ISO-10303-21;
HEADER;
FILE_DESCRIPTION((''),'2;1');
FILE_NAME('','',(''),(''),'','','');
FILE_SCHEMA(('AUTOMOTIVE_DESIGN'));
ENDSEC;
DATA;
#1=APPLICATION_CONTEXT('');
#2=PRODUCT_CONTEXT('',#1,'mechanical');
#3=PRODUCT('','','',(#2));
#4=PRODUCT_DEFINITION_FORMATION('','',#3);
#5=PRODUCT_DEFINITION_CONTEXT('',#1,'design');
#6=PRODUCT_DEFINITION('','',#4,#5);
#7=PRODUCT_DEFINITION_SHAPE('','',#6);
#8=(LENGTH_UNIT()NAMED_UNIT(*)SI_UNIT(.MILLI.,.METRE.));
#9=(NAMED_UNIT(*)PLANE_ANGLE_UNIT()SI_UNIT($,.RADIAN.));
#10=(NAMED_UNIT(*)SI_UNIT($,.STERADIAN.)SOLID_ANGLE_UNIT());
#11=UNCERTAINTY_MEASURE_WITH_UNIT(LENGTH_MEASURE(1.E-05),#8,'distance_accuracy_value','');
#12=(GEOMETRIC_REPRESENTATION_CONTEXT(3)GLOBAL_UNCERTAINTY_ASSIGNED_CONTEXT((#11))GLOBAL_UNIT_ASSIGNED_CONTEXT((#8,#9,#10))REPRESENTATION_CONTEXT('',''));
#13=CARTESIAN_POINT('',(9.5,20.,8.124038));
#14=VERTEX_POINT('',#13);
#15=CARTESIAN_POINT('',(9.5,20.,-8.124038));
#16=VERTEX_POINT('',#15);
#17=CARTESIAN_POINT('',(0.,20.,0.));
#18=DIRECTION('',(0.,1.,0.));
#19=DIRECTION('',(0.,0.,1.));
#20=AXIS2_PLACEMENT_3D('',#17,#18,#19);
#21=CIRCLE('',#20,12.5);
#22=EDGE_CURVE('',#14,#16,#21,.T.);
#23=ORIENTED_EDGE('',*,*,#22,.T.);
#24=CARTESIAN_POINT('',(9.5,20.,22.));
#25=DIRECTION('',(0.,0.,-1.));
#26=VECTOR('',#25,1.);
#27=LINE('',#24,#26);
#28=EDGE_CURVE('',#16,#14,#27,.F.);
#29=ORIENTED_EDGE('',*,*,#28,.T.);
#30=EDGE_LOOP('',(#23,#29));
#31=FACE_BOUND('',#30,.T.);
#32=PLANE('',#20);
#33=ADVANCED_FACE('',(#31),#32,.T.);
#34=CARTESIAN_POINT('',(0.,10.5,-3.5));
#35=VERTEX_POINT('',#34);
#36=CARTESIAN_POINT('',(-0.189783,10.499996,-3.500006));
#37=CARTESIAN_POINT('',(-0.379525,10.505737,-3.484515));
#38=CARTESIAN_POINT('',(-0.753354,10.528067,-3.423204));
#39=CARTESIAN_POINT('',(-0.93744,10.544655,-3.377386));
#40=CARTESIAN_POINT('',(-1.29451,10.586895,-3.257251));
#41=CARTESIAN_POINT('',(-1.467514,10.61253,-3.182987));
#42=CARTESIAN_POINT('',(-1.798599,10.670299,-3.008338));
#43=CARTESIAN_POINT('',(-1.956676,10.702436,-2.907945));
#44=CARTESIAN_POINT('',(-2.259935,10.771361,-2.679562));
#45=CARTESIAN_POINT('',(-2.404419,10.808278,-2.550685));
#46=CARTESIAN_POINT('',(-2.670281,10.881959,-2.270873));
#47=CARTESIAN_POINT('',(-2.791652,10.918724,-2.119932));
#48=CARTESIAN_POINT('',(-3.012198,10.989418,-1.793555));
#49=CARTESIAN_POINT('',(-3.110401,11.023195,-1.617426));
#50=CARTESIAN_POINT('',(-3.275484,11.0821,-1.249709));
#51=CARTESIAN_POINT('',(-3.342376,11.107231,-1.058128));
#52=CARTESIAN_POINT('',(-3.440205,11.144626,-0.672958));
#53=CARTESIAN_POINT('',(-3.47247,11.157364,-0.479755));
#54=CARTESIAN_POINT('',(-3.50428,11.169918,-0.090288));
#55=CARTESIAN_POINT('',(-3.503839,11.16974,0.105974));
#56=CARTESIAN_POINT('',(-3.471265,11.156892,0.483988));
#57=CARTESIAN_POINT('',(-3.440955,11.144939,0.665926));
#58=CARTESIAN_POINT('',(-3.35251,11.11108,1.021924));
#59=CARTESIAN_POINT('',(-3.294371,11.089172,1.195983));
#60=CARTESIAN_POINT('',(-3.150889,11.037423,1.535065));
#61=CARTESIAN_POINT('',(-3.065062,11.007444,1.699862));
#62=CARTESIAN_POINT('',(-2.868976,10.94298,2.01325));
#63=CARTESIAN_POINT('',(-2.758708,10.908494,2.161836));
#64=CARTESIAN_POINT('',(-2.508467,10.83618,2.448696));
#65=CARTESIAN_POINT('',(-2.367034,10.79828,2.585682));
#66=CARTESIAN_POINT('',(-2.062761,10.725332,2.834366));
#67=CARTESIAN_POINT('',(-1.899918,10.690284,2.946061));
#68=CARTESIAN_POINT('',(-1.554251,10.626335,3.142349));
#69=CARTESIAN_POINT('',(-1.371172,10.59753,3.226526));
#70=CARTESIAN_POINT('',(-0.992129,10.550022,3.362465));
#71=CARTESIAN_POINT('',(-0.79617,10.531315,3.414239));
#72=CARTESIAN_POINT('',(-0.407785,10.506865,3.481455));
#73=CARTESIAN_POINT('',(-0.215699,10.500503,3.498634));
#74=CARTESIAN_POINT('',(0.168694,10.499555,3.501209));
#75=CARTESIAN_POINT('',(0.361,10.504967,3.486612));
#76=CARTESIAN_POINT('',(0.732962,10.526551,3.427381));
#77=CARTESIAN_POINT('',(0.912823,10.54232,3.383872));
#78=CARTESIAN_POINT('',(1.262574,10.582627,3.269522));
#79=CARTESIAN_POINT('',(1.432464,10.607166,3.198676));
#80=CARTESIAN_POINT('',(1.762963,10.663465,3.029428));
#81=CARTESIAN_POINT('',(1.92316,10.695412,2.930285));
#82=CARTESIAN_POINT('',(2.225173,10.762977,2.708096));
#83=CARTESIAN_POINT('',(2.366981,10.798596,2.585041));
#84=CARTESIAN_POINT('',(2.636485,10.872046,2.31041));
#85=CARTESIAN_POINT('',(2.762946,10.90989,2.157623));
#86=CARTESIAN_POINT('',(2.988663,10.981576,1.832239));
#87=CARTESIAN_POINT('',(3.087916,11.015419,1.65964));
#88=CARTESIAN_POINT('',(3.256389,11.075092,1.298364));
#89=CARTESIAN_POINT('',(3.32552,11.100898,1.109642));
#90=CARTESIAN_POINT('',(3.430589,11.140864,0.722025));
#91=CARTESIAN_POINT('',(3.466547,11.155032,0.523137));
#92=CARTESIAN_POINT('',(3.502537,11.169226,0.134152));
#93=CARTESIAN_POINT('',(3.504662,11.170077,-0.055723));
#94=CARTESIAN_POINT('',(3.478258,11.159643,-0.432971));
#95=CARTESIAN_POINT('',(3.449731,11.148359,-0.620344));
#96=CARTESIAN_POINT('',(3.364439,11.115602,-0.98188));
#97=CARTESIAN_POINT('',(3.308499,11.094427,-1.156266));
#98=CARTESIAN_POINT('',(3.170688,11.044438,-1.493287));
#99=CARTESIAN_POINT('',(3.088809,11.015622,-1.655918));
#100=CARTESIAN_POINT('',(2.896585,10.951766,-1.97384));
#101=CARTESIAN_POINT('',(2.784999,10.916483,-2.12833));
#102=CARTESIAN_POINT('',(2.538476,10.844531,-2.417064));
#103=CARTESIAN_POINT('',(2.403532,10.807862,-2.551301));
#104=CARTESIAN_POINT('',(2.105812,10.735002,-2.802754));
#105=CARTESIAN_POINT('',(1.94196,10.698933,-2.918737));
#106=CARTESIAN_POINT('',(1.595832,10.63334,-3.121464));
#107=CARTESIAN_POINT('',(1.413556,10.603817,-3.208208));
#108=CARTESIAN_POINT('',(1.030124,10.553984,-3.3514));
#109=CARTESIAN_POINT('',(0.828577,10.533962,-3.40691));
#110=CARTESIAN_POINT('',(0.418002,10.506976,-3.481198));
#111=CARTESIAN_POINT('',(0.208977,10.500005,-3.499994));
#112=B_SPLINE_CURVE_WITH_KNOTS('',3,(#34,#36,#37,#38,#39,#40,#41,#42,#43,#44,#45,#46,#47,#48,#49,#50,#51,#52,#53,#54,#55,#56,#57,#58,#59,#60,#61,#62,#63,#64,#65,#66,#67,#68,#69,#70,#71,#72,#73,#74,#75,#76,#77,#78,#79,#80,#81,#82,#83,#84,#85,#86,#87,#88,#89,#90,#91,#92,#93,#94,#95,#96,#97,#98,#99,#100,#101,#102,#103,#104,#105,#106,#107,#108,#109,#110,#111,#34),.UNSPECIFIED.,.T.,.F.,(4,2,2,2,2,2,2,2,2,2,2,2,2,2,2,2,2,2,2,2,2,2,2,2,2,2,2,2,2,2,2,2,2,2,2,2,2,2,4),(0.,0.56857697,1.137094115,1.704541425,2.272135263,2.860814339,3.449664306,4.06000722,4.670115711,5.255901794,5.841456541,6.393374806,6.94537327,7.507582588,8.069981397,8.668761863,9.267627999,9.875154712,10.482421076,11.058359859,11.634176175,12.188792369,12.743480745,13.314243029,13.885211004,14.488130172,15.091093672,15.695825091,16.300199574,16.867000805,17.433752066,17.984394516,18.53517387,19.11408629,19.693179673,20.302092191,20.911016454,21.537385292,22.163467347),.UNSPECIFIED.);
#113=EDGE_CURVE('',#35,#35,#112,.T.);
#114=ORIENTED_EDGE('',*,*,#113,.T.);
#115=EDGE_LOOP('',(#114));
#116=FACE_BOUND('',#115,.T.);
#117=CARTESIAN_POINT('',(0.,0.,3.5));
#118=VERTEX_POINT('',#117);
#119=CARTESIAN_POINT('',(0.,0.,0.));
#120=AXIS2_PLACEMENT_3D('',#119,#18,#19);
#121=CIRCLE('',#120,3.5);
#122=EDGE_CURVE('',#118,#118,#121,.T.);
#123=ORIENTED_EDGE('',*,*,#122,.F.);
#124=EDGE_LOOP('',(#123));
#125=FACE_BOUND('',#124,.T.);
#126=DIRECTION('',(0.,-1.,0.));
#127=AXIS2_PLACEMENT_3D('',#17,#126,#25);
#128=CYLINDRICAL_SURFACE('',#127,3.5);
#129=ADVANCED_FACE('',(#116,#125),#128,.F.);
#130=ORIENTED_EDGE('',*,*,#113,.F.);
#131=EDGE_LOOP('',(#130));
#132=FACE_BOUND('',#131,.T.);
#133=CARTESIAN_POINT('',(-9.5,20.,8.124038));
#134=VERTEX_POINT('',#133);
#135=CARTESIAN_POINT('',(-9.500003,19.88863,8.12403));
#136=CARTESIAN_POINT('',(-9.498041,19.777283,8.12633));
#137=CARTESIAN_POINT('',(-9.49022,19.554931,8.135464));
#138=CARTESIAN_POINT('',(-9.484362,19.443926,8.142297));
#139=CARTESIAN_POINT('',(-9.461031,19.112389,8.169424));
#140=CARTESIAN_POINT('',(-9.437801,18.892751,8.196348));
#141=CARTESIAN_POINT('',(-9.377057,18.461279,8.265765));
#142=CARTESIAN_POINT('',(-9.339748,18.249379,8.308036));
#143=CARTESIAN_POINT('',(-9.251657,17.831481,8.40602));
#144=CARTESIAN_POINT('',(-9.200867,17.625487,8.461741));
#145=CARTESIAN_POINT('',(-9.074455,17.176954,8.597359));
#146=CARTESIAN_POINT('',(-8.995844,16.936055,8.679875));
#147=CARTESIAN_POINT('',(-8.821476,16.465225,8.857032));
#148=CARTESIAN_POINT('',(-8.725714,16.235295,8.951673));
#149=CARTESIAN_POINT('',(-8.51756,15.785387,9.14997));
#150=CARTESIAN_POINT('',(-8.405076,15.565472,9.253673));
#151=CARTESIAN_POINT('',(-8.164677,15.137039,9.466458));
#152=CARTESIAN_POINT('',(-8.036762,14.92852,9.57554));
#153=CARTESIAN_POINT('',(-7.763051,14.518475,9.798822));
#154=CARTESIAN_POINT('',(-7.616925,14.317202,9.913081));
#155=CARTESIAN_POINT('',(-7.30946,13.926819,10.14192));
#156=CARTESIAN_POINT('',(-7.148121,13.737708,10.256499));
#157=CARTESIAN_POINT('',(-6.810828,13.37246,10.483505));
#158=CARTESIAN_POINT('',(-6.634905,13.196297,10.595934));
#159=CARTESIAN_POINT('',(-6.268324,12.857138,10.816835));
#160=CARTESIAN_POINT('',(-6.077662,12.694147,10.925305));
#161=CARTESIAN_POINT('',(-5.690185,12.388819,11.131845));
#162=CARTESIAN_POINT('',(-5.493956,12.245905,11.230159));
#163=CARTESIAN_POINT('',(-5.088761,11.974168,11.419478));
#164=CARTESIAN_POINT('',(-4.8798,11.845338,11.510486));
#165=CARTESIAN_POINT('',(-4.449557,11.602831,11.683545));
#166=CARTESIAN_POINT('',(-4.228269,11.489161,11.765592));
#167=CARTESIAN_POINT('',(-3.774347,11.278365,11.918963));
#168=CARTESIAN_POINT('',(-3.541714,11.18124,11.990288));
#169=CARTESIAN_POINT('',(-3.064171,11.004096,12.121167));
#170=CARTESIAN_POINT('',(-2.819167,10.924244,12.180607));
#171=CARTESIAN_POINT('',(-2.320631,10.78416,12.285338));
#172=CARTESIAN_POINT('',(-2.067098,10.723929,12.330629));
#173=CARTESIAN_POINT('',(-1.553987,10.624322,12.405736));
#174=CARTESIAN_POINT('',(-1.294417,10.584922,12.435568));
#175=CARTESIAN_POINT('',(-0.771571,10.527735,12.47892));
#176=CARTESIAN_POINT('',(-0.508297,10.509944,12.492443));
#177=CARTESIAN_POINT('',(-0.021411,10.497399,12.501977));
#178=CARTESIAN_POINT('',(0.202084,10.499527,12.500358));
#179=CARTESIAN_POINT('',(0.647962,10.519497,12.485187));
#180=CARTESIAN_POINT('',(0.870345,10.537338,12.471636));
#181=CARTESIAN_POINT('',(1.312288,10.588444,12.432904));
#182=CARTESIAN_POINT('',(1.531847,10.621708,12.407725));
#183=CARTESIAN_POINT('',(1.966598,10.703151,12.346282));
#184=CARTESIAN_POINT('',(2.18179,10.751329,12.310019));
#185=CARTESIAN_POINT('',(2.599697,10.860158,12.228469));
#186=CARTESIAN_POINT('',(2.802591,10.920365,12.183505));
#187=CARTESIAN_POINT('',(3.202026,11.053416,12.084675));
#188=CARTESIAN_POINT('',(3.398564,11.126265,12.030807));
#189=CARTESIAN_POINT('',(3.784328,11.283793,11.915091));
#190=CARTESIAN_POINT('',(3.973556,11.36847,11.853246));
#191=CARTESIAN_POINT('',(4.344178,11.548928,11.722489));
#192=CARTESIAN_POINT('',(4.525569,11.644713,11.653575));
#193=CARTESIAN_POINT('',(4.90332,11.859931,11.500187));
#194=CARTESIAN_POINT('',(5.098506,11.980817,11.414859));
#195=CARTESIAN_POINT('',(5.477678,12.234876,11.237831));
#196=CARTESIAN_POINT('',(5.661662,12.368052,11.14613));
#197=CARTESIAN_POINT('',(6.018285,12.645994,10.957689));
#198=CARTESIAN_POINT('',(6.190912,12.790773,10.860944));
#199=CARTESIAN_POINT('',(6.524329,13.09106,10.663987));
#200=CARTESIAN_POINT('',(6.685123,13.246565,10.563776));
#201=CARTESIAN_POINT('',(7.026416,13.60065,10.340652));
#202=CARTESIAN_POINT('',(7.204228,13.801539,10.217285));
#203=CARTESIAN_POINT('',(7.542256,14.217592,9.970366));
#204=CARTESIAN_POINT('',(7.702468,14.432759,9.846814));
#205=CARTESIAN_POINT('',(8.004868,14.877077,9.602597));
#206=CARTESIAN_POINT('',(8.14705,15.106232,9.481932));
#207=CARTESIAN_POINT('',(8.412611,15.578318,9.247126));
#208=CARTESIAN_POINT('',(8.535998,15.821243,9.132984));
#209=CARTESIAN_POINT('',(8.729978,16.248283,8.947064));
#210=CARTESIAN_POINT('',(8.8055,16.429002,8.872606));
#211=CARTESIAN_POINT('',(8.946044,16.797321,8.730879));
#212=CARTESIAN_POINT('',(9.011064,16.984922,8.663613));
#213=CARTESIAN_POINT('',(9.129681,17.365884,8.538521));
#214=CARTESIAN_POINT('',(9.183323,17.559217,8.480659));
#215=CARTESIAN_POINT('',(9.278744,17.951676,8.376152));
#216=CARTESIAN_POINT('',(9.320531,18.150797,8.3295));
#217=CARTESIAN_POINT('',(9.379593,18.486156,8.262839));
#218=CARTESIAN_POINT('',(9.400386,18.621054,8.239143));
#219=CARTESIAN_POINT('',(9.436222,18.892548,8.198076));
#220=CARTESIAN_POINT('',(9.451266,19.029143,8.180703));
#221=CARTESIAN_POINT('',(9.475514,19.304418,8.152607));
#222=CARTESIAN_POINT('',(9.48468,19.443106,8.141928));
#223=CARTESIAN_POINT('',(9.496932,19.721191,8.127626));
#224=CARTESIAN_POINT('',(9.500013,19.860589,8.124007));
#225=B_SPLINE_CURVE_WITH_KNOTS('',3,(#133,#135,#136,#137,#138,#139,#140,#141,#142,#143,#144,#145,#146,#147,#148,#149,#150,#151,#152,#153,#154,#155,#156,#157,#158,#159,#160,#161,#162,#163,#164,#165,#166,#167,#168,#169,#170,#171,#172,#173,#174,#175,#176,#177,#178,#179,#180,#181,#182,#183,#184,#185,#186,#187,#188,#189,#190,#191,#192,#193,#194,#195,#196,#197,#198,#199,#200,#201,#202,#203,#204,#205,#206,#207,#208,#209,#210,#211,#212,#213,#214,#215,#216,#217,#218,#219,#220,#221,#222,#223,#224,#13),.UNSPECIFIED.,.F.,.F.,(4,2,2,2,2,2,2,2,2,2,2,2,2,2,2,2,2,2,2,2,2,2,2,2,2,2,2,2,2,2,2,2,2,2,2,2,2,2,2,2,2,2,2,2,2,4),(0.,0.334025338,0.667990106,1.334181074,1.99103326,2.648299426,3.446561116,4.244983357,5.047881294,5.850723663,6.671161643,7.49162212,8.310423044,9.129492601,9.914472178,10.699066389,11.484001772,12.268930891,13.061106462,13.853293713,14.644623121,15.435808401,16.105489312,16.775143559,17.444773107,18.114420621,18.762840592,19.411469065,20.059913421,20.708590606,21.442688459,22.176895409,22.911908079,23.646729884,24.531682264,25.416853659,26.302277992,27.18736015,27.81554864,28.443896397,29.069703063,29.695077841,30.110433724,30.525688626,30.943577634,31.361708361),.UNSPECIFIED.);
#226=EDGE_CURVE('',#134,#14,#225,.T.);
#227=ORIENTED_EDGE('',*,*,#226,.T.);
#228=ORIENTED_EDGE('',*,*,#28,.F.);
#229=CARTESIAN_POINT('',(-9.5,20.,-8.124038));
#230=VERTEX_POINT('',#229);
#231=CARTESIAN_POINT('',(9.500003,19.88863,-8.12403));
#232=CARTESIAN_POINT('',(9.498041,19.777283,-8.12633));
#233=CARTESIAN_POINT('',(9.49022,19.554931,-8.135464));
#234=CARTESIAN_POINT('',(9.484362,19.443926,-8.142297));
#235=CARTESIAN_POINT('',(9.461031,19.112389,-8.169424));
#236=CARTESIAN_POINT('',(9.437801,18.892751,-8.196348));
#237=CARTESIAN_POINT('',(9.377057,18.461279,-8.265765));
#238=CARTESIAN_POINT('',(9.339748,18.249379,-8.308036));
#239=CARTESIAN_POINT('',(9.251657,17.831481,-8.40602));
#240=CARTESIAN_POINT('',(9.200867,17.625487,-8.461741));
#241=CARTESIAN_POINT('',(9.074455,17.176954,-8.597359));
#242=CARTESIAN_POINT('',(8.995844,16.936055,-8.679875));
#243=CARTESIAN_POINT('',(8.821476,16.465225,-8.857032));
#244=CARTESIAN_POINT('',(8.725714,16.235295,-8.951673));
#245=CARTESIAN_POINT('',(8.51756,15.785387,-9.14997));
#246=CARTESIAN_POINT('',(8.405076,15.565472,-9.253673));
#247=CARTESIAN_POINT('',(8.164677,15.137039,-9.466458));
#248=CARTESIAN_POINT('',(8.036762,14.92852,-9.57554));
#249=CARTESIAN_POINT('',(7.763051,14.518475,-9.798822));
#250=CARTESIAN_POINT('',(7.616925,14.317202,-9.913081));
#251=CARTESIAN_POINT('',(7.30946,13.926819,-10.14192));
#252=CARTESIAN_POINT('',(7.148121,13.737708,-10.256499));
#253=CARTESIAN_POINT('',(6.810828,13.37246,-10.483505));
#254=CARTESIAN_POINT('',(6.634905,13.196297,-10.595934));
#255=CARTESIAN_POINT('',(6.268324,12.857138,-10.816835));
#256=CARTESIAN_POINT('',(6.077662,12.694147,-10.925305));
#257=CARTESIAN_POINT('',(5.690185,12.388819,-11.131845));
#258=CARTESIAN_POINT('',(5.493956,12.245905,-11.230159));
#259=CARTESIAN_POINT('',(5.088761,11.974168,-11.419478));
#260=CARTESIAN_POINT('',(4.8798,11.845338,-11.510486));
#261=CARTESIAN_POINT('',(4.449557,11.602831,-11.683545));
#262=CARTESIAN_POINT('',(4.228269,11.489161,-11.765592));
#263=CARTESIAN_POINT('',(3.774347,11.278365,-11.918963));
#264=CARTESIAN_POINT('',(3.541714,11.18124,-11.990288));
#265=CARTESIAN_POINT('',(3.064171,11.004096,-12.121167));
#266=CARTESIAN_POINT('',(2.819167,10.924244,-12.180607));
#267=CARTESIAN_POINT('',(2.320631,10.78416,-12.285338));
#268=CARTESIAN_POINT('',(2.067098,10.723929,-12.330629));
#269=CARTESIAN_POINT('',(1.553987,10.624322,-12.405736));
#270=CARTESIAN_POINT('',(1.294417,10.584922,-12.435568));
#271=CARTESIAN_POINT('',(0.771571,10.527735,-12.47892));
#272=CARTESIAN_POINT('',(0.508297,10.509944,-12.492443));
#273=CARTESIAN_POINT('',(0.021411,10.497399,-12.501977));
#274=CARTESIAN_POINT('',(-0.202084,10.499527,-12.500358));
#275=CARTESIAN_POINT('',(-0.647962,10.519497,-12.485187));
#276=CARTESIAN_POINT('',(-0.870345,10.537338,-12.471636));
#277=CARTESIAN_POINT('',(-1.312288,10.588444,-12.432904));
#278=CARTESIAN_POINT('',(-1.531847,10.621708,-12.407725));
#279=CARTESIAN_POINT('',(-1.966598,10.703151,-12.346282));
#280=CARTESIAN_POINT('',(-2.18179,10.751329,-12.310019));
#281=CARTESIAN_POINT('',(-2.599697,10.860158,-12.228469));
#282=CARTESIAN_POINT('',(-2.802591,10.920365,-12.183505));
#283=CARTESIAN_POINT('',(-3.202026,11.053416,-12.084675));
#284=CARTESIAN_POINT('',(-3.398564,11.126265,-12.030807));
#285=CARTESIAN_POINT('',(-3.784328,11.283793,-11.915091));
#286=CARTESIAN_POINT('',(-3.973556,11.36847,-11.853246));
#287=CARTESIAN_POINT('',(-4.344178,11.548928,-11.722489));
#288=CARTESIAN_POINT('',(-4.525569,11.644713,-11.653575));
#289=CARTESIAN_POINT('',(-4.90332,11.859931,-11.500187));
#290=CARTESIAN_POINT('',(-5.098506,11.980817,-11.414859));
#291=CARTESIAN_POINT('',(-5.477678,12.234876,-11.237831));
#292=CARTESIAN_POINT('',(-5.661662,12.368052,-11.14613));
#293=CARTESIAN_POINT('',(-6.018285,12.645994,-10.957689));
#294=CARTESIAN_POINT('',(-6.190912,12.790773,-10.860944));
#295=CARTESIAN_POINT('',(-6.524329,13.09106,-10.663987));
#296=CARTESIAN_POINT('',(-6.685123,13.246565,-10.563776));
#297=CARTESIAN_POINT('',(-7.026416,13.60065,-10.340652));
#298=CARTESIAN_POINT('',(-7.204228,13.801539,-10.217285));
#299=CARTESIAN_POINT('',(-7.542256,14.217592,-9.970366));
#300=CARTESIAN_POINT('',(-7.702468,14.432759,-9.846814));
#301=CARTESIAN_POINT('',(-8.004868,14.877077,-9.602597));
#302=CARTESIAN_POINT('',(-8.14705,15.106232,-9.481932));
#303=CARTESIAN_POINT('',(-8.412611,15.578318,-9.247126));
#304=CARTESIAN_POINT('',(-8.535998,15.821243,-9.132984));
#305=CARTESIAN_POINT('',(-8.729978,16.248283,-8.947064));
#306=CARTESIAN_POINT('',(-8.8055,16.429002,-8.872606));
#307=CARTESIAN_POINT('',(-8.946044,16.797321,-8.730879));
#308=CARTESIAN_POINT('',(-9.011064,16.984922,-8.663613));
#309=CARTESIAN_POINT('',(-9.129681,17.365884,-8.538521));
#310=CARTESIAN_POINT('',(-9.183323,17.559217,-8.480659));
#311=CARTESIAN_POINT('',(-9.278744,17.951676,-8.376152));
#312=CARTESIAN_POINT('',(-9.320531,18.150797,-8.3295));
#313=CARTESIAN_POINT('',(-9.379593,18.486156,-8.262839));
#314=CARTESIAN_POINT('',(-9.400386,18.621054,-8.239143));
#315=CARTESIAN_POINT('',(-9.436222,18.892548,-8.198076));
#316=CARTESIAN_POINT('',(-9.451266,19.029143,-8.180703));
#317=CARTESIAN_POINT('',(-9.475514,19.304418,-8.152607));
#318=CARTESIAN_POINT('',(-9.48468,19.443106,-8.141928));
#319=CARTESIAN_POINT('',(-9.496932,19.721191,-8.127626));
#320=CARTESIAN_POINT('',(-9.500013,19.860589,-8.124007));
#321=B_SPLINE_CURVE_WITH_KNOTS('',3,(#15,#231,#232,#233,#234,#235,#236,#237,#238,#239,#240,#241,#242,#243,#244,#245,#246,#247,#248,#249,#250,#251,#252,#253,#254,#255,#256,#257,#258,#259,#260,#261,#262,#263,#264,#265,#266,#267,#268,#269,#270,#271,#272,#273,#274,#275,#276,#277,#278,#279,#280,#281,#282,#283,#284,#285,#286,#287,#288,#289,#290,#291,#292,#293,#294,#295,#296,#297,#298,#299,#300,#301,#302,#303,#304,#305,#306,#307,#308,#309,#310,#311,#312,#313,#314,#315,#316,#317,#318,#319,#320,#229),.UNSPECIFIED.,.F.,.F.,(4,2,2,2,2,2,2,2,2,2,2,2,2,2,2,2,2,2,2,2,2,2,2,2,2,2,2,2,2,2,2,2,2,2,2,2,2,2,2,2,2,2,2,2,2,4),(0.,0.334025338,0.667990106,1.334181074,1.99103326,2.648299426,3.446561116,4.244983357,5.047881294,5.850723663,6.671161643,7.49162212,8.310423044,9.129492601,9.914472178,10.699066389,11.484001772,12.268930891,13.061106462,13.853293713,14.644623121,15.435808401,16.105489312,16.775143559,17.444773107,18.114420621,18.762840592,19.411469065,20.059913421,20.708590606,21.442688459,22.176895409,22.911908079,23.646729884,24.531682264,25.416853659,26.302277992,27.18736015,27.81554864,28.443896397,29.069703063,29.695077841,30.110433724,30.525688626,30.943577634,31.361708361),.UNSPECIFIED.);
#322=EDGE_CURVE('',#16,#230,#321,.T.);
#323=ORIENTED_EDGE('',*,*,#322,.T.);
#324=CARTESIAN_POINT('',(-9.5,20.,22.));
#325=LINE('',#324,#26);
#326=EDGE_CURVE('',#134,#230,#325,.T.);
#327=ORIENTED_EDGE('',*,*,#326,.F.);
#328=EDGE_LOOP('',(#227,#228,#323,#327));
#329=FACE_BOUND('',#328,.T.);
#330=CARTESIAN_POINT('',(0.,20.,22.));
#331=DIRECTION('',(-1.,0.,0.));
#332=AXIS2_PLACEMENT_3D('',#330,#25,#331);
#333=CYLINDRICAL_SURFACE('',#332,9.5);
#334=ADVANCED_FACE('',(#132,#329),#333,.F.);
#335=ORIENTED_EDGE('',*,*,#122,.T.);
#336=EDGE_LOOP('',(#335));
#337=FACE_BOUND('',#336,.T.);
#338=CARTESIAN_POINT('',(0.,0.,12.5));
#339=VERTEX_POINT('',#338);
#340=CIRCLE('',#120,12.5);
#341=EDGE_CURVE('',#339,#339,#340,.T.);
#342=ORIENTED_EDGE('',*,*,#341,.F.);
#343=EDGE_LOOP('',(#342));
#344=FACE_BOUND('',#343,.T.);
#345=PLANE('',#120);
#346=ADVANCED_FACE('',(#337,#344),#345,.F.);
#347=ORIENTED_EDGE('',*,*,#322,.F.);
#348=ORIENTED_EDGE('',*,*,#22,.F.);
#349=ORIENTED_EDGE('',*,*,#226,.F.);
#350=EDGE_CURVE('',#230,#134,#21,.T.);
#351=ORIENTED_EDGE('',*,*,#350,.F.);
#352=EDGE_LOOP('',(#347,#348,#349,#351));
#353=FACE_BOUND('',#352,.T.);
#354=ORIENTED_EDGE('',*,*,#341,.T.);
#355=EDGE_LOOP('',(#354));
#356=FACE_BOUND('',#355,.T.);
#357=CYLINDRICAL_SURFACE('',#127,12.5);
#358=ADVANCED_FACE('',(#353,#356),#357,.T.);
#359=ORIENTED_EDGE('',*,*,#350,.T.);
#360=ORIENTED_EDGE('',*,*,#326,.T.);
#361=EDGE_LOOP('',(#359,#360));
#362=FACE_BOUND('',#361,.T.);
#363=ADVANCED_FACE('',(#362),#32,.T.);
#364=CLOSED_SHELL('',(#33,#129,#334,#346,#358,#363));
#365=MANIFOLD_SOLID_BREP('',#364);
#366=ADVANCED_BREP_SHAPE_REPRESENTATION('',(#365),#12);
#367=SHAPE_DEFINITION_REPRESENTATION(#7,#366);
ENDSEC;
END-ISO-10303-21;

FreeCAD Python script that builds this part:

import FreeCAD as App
import Part
import Sketcher
from FreeCAD import Vector

doc = App.newDocument("Part")
body = doc.addObject("PartDesign::Body", "Body")

# Sketch on XZ plane
sketch1 = body.newObject("Sketcher::SketchObject", "Sketch")
sketch1.AttachmentSupport = (doc.getObject("XZ_Plane"), [""])
sketch1.MapMode = "FlatFace"
sketch1.addGeometry([
    Part.Circle(Vector(0, 0, 0), Vector(0, 0, 1), 12.5),
    Part.Circle(Vector(0, 0, 0), Vector(0, 0, 1), 3.5),
], False)
sketch1.addConstraint([
    Sketcher.Constraint("Coincident", 0, 3, -1, 1),
    Sketcher.Constraint("Coincident", 1, 3, -1, 1),
    Sketcher.Constraint("Diameter", 0, 25.0),
    Sketcher.Constraint("Diameter", 1, 7.0),
])
pad1 = body.newObject("PartDesign::Pad", "Pad")
pad1.Profile = sketch1
pad1.Length = 20
pad1.Reversed = True

# Sketch on XY plane
sketch2 = body.newObject("Sketcher::SketchObject", "Sketch001")
sketch2.AttachmentSupport = (doc.getObject("XY_Plane"), [""])
sketch2.MapMode = "FlatFace"
sketch2.addGeometry(Part.Circle(Vector(0, 20, 0), Vector(0, 0, 1), 9.5), False)
sketch2.addConstraint([
    Sketcher.Constraint("PointOnObject", 0, 3, -2),
    Sketcher.Constraint("Diameter", 0, 19.0),
    Sketcher.Constraint("DistanceY", -1, 1, 0, 3, 20.0),
])
pocket1 = body.newObject("PartDesign::Pocket", "Pocket")
pocket1.Profile = sketch2
pocket1.Type = "ThroughAll"
pocket1.Midplane = True

doc.recompute()
